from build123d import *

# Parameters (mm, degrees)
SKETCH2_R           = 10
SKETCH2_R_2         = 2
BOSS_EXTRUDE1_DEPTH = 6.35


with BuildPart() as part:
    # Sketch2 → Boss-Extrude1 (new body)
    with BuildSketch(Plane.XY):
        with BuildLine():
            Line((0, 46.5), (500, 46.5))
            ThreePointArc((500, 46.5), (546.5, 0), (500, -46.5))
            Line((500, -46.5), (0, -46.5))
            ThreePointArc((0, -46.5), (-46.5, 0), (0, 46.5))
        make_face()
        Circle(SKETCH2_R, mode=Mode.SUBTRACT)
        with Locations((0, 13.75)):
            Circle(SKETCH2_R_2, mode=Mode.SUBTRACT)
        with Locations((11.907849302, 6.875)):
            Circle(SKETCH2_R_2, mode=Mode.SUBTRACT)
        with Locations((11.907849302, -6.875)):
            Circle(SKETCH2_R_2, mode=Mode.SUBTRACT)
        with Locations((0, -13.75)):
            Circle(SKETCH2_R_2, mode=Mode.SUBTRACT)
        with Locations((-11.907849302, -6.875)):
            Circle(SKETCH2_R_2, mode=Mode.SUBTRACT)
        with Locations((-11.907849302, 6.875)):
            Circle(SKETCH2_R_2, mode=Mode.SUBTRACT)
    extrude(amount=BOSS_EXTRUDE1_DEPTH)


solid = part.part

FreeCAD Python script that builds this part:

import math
import FreeCAD as App
import Part
import Sketcher

V = App.Vector

doc = App.newDocument("Part")
body = doc.addObject("PartDesign::Body", "Body")

# Sketch on XY plane
sketch1 = body.newObject("Sketcher::SketchObject", "Sketch")
sketch1.AttachmentSupport = (doc.getObject("XY_Plane"), [""])
sketch1.MapMode = "FlatFace"
sketch1.addGeometry([
    Part.LineSegment(V(500, 46.5, 0), V(0, 46.5, 0)),  # 0
    Part.ArcOfCircle(Part.Circle(V(0, 0, 0), V(0, 0, 1), 46.5), math.radians(90), math.radians(270)),  # 1
    Part.LineSegment(V(0, -46.5, 0), V(500, -46.5, 0)),  # 2
    Part.ArcOfCircle(Part.Circle(V(500, 0, 0), V(0, 0, 1), 46.5), math.radians(-90), math.radians(90)),  # 3
    Part.Circle(V(0, -13.8, 0), V(0, 0, 1), 2),  # 4
    Part.Circle(V(11.9, -6.9, 0), V(0, 0, 1), 2),  # 5
    Part.Circle(V(-11.9, -6.9, 0), V(0, 0, 1), 2),  # 6
    Part.Circle(V(11.9, 6.9, 0), V(0, 0, 1), 2),  # 7
    Part.Circle(V(0, 0, 0), V(0, 0, 1), 10),  # 8
    Part.Circle(V(0, 13.8, 0), V(0, 0, 1), 2),  # 9
    Part.Circle(V(-11.9, 6.9, 0), V(0, 0, 1), 2),  # 10
], False)
sketch1.addConstraint([
    Sketcher.Constraint("Tangent", 0, 2, 1, 1),
    Sketcher.Constraint("Tangent", 1, 2, 2, 1),
    Sketcher.Constraint("Tangent", 2, 2, 3, 1),
    Sketcher.Constraint("Tangent", 3, 2, 0, 1),
    Sketcher.Constraint("Horizontal", 0),
    Sketcher.Constraint("Horizontal", 2),
    Sketcher.Constraint("Coincident", 1, 3, -1, 1),
    Sketcher.Constraint("Coincident", 8, 3, -1, 1),
    Sketcher.Constraint("Equal", 4, 5),
    Sketcher.Constraint("Equal", 5, 6),
    Sketcher.Constraint("Equal", 6, 7),
    Sketcher.Constraint("Equal", 7, 9),
    Sketcher.Constraint("Equal", 9, 10),
    Sketcher.Constraint("Symmetric", 6, 3, 7, 3, -1, 1),
    Sketcher.Constraint("Symmetric", 4, 3, 9, 3, -1, 1),
    Sketcher.Constraint("Symmetric", 5, 3, 10, 3, -1, 1),
    Sketcher.Constraint("Symmetric", 5, 3, 6, 3, -2),
    Sketcher.Constraint("PointOnObject", 4, 3, -2),
    Sketcher.Constraint("Diameter", 4, 4.0),
    Sketcher.Constraint("Diameter", 8, 20.0),
    Sketcher.Constraint("Radius", 1, 46.5),
    Sketcher.Constraint("DistanceX", 0, 2, 0, 1, 500.0),
    Sketcher.Constraint("DistanceY", 4, 3, -1, 1, 13.75),
    Sketcher.Constraint("DistanceY", 5, 3, 7, 3, 13.75),
    Sketcher.Constraint("DistanceX", 6, 3, 5, 3, 23.815699),
])
pad1 = body.newObject("PartDesign::Pad", "Pad")
pad1.Profile = sketch1
pad1.Length = 6.35

doc.recompute()
